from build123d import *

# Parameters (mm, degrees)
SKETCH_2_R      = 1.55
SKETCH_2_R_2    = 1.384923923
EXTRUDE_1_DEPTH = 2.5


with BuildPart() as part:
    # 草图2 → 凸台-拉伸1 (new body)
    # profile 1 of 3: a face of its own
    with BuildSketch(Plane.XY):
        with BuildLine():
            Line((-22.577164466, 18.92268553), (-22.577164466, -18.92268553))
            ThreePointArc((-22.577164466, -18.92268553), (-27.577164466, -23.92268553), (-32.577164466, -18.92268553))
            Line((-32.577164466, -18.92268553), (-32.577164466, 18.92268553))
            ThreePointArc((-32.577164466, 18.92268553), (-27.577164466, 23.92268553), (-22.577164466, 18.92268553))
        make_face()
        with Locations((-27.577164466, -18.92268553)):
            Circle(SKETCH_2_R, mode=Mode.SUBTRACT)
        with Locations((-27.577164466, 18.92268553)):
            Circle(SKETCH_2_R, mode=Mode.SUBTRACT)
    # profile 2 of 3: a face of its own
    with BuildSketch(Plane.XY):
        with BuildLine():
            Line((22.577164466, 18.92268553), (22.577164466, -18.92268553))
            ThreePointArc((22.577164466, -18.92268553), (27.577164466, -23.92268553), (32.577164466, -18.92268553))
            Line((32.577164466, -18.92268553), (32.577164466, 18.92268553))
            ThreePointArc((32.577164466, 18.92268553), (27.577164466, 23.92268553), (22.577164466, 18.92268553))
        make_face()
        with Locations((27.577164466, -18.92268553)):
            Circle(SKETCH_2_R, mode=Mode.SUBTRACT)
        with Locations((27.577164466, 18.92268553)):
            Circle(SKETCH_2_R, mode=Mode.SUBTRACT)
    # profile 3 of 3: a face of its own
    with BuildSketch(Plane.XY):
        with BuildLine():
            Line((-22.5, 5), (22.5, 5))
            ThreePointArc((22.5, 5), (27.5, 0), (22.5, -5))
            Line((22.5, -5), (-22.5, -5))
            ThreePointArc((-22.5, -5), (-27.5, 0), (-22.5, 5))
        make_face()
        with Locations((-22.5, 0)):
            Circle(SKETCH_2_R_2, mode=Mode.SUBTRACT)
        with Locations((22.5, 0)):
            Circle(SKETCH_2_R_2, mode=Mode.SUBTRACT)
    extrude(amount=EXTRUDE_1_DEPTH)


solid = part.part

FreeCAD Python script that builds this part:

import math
import FreeCAD as App
import Part
import Sketcher
from FreeCAD import Vector

doc = App.newDocument("Part")
body = doc.addObject("PartDesign::Body", "Body")

sketch1 = body.newObject("Sketcher::SketchObject", "Sketch")
sketch1.AttachmentSupport = (doc.getObject("XY_Plane"), [""])
sketch1.MapMode = "FlatFace"
sketch1.addGeometry(Part.ArcOfCircle(Part.Circle(Vector(-27.577164, 18.922686, 0), Vector(0, 0, 1), 5), math.radians(0), math.radians(180)), False)
sketch1.addGeometry(Part.LineSegment(Vector(-32.577164, 18.922686, 0), Vector(-32.577164, -18.922686, 0)), False)
sketch1.addGeometry(Part.ArcOfCircle(Part.Circle(Vector(-27.577164, -18.922686, 0), Vector(0, 0, 1), 5), math.radians(180), math.radians(360)), False)
sketch1.addGeometry(Part.LineSegment(Vector(-22.577164, -18.922686, 0), Vector(-22.577164, -4.999405, 0)), False)
sketch1.addGeometry(Part.ArcOfCircle(Part.Circle(Vector(-22.5, 0, 0), Vector(0, 0, 1), 5), math.radians(-90.884275), math.radians(-90)), False)
sketch1.addGeometry(Part.LineSegment(Vector(-22.5, -5, 0), Vector(22.5, -5, 0)), False)
sketch1.addGeometry(Part.ArcOfCircle(Part.Circle(Vector(22.5, 0, 0), Vector(0, 0, 1), 5), math.radians(-90), math.radians(-89.115725)), False)
sketch1.addGeometry(Part.LineSegment(Vector(22.577164, -4.999405, 0), Vector(22.577164, -18.922686, 0)), False)
sketch1.addGeometry(Part.ArcOfCircle(Part.Circle(Vector(27.577164, -18.922686, 0), Vector(0, 0, 1), 5), math.radians(180), math.radians(360)), False)
sketch1.addGeometry(Part.LineSegment(Vector(32.577164, -18.922686, 0), Vector(32.577164, 18.922686, 0)), False)
sketch1.addGeometry(Part.ArcOfCircle(Part.Circle(Vector(27.577164, 18.922686, 0), Vector(0, 0, 1), 5), math.radians(0), math.radians(180)), False)
sketch1.addGeometry(Part.LineSegment(Vector(22.577164, 18.922686, 0), Vector(22.577164, 4.999405, 0)), False)
sketch1.addGeometry(Part.ArcOfCircle(Part.Circle(Vector(22.5, 0, 0), Vector(0, 0, 1), 5), math.radians(89.115725), math.radians(90)), False)
sketch1.addGeometry(Part.LineSegment(Vector(22.5, 5, 0), Vector(-22.5, 5, 0)), False)
sketch1.addGeometry(Part.ArcOfCircle(Part.Circle(Vector(-22.5, 0, 0), Vector(0, 0, 1), 5), math.radians(90), math.radians(90.884275)), False)
sketch1.addGeometry(Part.LineSegment(Vector(-22.577164, 4.999405, 0), Vector(-22.577164, 18.922686, 0)), False)
sketch1.addGeometry(Part.Circle(Vector(-27.577164, -18.922686, 0), Vector(0, 0, 1), 1.55), False)
sketch1.addGeometry(Part.Circle(Vector(-27.577164, 18.922686, 0), Vector(0, 0, 1), 1.55), False)
sketch1.addGeometry(Part.ArcOfCircle(Part.Circle(Vector(-22.5, 0, 0), Vector(0, 0, 1), 1.384924), math.radians(-93.19403), math.radians(93.19403)), False)
sketch1.addGeometry(Part.LineSegment(Vector(-22.577164, -1.382773, 0), Vector(-22.577164, 1.382773, 0)), False)
sketch1.addGeometry(Part.ArcOfCircle(Part.Circle(Vector(22.5, 0, 0), Vector(0, 0, 1), 1.384924), math.radians(86.80597), math.radians(273.19403)), False)
sketch1.addGeometry(Part.LineSegment(Vector(22.577164, 1.382773, 0), Vector(22.577164, -1.382773, 0)), False)
sketch1.addGeometry(Part.Circle(Vector(27.577164, 18.922686, 0), Vector(0, 0, 1), 1.55), False)
sketch1.addGeometry(Part.Circle(Vector(27.577164, -18.922686, 0), Vector(0, 0, 1), 1.55), False)
sketch1.addConstraint(Sketcher.Constraint("Tangent", 0, 2, 1, 1))
sketch1.addConstraint(Sketcher.Constraint("Tangent", 1, 2, 2, 1))
sketch1.addConstraint(Sketcher.Constraint("Tangent", 2, 2, 3, 1))
sketch1.addConstraint(Sketcher.Constraint("Coincident", 3, 2, 4, 1))
sketch1.addConstraint(Sketcher.Constraint("Tangent", 4, 2, 5, 1))
sketch1.addConstraint(Sketcher.Constraint("Tangent", 5, 2, 6, 1))
sketch1.addConstraint(Sketcher.Constraint("Coincident", 6, 2, 7, 1))
sketch1.addConstraint(Sketcher.Constraint("Tangent", 7, 2, 8, 1))
sketch1.addConstraint(Sketcher.Constraint("Tangent", 8, 2, 9, 1))
sketch1.addConstraint(Sketcher.Constraint("Tangent", 9, 2, 10, 1))
sketch1.addConstraint(Sketcher.Constraint("Tangent", 10, 2, 11, 1))
sketch1.addConstraint(Sketcher.Constraint("Coincident", 11, 2, 12, 1))
sketch1.addConstraint(Sketcher.Constraint("Tangent", 12, 2, 13, 1))
sketch1.addConstraint(Sketcher.Constraint("Tangent", 13, 2, 14, 1))
sketch1.addConstraint(Sketcher.Constraint("Coincident", 14, 2, 15, 1))
sketch1.addConstraint(Sketcher.Constraint("Tangent", 15, 2, 0, 1))
sketch1.addConstraint(Sketcher.Constraint("Coincident", 18, 1, 19, 1))
sketch1.addConstraint(Sketcher.Constraint("Coincident", 19, 2, 18, 2))
sketch1.addConstraint(Sketcher.Constraint("Coincident", 20, 1, 21, 1))
sketch1.addConstraint(Sketcher.Constraint("Coincident", 21, 2, 20, 2))
sketch1.addConstraint(Sketcher.Constraint("Vertical", 1))
sketch1.addConstraint(Sketcher.Constraint("Vertical", 3))
sketch1.addConstraint(Sketcher.Constraint("Horizontal", 5))
sketch1.addConstraint(Sketcher.Constraint("Vertical", 7))
sketch1.addConstraint(Sketcher.Constraint("Vertical", 9))
sketch1.addConstraint(Sketcher.Constraint("Vertical", 11))
sketch1.addConstraint(Sketcher.Constraint("Horizontal", 13))
sketch1.addConstraint(Sketcher.Constraint("Vertical", 15))
sketch1.addConstraint(Sketcher.Constraint("Vertical", 19))
sketch1.addConstraint(Sketcher.Constraint("Vertical", 21))
sketch1.addConstraint(Sketcher.Constraint("Coincident", 12, 3, 6, 3))
sketch1.addConstraint(Sketcher.Constraint("Coincident", 14, 3, 4, 3))
sketch1.addConstraint(Sketcher.Constraint("Coincident", 16, 3, 2, 3))
sketch1.addConstraint(Sketcher.Constraint("Coincident", 17, 3, 0, 3))
sketch1.addConstraint(Sketcher.Constraint("Coincident", 18, 3, 4, 3))
sketch1.addConstraint(Sketcher.Constraint("Coincident", 20, 3, 6, 3))
sketch1.addConstraint(Sketcher.Constraint("Coincident", 22, 3, 10, 3))
sketch1.addConstraint(Sketcher.Constraint("Coincident", 23, 3, 8, 3))
sketch1.addConstraint(Sketcher.Constraint("Equal", 0, 2))
sketch1.addConstraint(Sketcher.Constraint("Equal", 2, 4))
sketch1.addConstraint(Sketcher.Constraint("Equal", 4, 6))
sketch1.addConstraint(Sketcher.Constraint("Equal", 6, 8))
sketch1.addConstraint(Sketcher.Constraint("Equal", 8, 10))
sketch1.addConstraint(Sketcher.Constraint("Equal", 10, 12))
sketch1.addConstraint(Sketcher.Constraint("Equal", 16, 17))
sketch1.addConstraint(Sketcher.Constraint("Equal", 18, 20))
sketch1.addConstraint(Sketcher.Constraint("Equal", 17, 22))
sketch1.addConstraint(Sketcher.Constraint("Equal", 22, 23))
sketch1.addConstraint(Sketcher.Constraint("Symmetric", 4, 3, 6, 3, -1, 1))
sketch1.addConstraint(Sketcher.Constraint("Symmetric", 0, 3, 8, 3, -1, 1))
sketch1.addConstraint(Sketcher.Constraint("Horizontal", 2, 3, 8, 3))
sketch1.addConstraint(Sketcher.Constraint("Horizontal", 0, 3, 10, 3))
sketch1.addConstraint(Sketcher.Constraint("Horizontal", 19, 2, 20, 1))
sketch1.addConstraint(Sketcher.Constraint("Vertical", 15, 2, 18, 1))
sketch1.addConstraint(Sketcher.Constraint("Radius", 0, 5.0))
sketch1.addConstraint(Sketcher.Constraint("Diameter", 16, 3.1))
sketch1.addConstraint(Sketcher.Constraint("DistanceX", 5, 1, 5, 2, 45.0))
sketch1.addConstraint(Sketcher.Constraint("Radius", 18, 1.384924))
sketch1.addConstraint(Sketcher.Constraint("DistanceY", 1, 2, 1, 1, 37.845371))
sketch1.addConstraint(Sketcher.Constraint("DistanceY", 3, 1, 3, 2, 13.923281))
pad1 = body.newObject("PartDesign::Pad", "Pad")
pad1.Profile = sketch1
pad1.Length = 2.5

doc.recompute()
